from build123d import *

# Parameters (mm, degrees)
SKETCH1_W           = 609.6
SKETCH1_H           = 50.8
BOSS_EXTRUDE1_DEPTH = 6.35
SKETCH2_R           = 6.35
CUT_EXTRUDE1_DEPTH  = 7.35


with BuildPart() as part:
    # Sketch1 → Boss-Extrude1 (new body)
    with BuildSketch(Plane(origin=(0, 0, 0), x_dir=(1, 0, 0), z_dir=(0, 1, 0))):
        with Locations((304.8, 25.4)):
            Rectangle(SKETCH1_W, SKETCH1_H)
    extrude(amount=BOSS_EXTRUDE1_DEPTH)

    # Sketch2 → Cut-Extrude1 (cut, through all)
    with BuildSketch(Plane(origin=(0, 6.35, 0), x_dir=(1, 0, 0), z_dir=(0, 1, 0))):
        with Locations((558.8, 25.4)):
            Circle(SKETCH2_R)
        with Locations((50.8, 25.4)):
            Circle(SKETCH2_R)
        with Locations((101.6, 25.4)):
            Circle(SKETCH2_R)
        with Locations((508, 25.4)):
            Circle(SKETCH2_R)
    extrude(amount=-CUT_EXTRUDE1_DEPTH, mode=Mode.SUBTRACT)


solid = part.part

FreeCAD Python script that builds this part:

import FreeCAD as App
import Part
import Sketcher
from FreeCAD import Vector
Q = App.Units.Quantity

doc = App.newDocument("Part")
body = doc.addObject("PartDesign::Body", "Body")

sketch1 = doc.addObject("Sketcher::SketchObject", "Sketch")
body.addObject(sketch1)
sketch1.AttachmentSupport = (doc.XZ_Plane, [""])
sketch1.MapMode = "FlatFace"
sketch1.addGeometry([
    Part.LineSegment(Vector(0, -50.8, 0), Vector(0, 0, 0)),
    Part.LineSegment(Vector(0, 0, 0), Vector(609.6, 0, 0)),
    Part.LineSegment(Vector(609.6, 0, 0), Vector(609.6, -50.8, 0)),
    Part.LineSegment(Vector(609.6, -50.8, 0), Vector(0, -50.8, 0)),
], False)
sketch1.addConstraint([
    Sketcher.Constraint("Coincident", 0, 2, 1, 1),
    Sketcher.Constraint("Coincident", 1, 2, 2, 1),
    Sketcher.Constraint("Coincident", 2, 2, 3, 1),
    Sketcher.Constraint("Coincident", 3, 2, 0, 1),
    Sketcher.Constraint("Vertical", 0),
    Sketcher.Constraint("Horizontal", 1),
    Sketcher.Constraint("Vertical", 2),
    Sketcher.Constraint("Horizontal", 3),
    Sketcher.Constraint("Coincident", 0, 2, -1, 1),
    Sketcher.Constraint("DistanceX", 1, 1, 1, 2, Q("24 in")),
    Sketcher.Constraint("DistanceY", 0, 1, 0, 2, Q("2 in")),
])
pad1 = doc.addObject("PartDesign::Pad", "Pad")
body.addObject(pad1)
pad1.Profile = sketch1
pad1.Length = Q("0.25 in")
pad1.Reversed = True

sketch2 = doc.addObject("Sketcher::SketchObject", "Sketch001")
body.addObject(sketch2)
sketch2.AttachmentSupport = (doc.XZ_Plane, [""])
sketch2.MapMode = "FlatFace"
sketch2.AttachmentOffset = App.Placement(Vector(0, 0, -0.25 * 25.4), App.Rotation())
sketch2.addGeometry([
    Part.Circle(Vector(558.8, -25.4, 0), Vector(0, 0, 1), 6.35),
    Part.Circle(Vector(50.8, -25.4, 0), Vector(0, 0, 1), 6.35),
    Part.Circle(Vector(101.6, -25.4, 0), Vector(0, 0, 1), 6.35),
    Part.Circle(Vector(508, -25.4, 0), Vector(0, 0, 1), 6.35),
], False)
sketch2.addConstraint([
    Sketcher.Constraint("Equal", 0, 1),
    Sketcher.Constraint("Equal", 1, 2),
    Sketcher.Constraint("Equal", 2, 3),
    Sketcher.Constraint("Horizontal", 0, 3, 1, 3),
    Sketcher.Constraint("Horizontal", 1, 3, 2, 3),
    Sketcher.Constraint("Horizontal", 2, 3, 3, 3),
    Sketcher.Constraint("Diameter", 0, Q("0.5 in")),
    Sketcher.Constraint("DistanceX", -1, 1, 0, 3, Q("22 in")),
    Sketcher.Constraint("DistanceY", 0, 3, -1, 1, Q("1 in")),
    Sketcher.Constraint("DistanceX", -1, 1, 1, 3, Q("2 in")),
    Sketcher.Constraint("DistanceX", -1, 1, 2, 3, Q("4 in")),
    Sketcher.Constraint("DistanceX", -1, 1, 3, 3, Q("20 in")),
])
pocket1 = doc.addObject("PartDesign::Pocket", "Pocket")
body.addObject(pocket1)
pocket1.Profile = sketch2
pocket1.Type = "ThroughAll"
pocket1.Reversed = True

doc.recompute()
